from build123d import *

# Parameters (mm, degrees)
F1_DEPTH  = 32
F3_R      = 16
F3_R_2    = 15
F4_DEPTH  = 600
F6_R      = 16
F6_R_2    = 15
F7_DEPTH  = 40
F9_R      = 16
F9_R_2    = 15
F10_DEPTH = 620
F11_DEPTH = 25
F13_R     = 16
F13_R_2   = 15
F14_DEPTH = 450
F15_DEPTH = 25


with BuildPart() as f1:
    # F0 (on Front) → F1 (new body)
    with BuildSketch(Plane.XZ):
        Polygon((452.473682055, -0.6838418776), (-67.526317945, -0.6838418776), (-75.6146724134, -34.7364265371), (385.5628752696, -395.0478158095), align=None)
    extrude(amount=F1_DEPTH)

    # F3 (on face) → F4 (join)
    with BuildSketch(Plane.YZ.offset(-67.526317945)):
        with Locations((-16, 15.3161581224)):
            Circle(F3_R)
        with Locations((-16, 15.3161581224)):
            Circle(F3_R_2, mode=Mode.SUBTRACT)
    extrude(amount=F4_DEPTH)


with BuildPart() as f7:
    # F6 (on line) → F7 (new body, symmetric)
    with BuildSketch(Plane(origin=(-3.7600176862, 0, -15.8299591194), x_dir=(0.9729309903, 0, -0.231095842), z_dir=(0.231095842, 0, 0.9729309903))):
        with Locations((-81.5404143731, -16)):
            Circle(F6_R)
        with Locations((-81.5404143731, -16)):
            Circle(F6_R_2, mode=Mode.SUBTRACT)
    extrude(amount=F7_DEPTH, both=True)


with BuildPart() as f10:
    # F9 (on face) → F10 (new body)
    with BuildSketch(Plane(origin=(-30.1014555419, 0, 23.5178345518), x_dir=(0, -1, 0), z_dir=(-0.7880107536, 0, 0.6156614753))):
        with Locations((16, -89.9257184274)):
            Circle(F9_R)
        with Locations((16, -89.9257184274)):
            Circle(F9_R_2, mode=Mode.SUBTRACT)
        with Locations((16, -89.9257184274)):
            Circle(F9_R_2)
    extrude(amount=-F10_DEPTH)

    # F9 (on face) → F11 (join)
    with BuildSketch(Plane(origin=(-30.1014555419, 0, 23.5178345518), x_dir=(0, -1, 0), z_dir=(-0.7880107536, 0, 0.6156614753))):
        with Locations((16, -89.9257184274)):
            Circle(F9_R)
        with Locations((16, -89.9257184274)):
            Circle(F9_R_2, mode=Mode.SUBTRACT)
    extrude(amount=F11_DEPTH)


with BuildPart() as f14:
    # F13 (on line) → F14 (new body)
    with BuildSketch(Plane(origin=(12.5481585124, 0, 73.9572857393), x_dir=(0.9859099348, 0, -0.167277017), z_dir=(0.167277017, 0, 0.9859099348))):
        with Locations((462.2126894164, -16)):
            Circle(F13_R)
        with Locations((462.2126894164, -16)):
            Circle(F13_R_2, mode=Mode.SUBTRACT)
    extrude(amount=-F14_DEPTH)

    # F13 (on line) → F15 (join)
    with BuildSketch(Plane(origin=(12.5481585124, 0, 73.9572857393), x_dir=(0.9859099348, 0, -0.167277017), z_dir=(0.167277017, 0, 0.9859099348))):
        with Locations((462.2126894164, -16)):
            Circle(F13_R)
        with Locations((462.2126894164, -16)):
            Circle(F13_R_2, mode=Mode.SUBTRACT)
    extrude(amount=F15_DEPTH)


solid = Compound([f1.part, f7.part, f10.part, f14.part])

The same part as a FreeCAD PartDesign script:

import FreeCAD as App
import Part
import Sketcher
Q = App.Units.Quantity


def add_polygon(sketch, points):
    """Adds a closed chain of lines whose ends are joined by coincident constraints."""
    first, n = sketch.GeometryCount, len(points)
    for a, b in zip(points, points[1:] + points[:1]):
        sketch.addGeometry(Part.LineSegment(App.Vector(*a, 0), App.Vector(*b, 0)), False)
    for i in range(n):
        sketch.addConstraint(Sketcher.Constraint("Coincident", first + i, 2, first + (i + 1) % n, 1))

doc = App.newDocument("Part")
body = doc.addObject("PartDesign::Body", "Body")
body.AllowCompound = True

sketch1 = doc.addObject("Sketcher::SketchObject", "Sketch")
body.addObject(sketch1)
sketch1.AttachmentSupport = (doc.XZ_Plane, [""])
sketch1.MapMode = "FlatFace"
add_polygon(sketch1, [(452, -1), (-68, -1), (-76, -35), (386, -395)])
sketch1.addConstraint(Sketcher.Constraint("Horizontal", 0))
sketch1.addConstraint(Sketcher.Constraint("DistanceX", 0, 2, 0, 1, 520.0))
sketch1.addConstraint(Sketcher.Constraint("Angle", 2, Q("-38 deg")))
sketch1.addConstraint(Sketcher.Constraint("Distance", 1, 35.0))
sketch1.addConstraint(Sketcher.Constraint("Distance", 3, 400.0))
sketch1.addConstraint(Sketcher.Constraint("Distance", 2, 585.242708))
sketch1.addConstraint(Sketcher.Constraint("DistanceY", 0, 2, -1, 1, 0.683842))
sketch1.addConstraint(Sketcher.Constraint("DistanceX", 0, 2, -1, 1, 67.526318))
pad1 = doc.addObject("PartDesign::Pad", "Pad")
body.addObject(pad1)
pad1.Profile = sketch1
pad1.Length = 32

sketch2 = doc.addObject("Sketcher::SketchObject", "Sketch001")
body.addObject(sketch2)
sketch2.AttachmentSupport = (doc.YZ_Plane, [""])
sketch2.MapMode = "FlatFace"
sketch2.AttachmentOffset = App.Placement(App.Vector(0, 0, -67.526318), App.Rotation())
sketch2.addGeometry(Part.Circle(App.Vector(-16, 15, 0), App.Vector(0, 0, 1), 16), False)
sketch2.addGeometry(Part.Circle(App.Vector(-16, 15, 0), App.Vector(0, 0, 1), 15), False)
sketch2.addConstraint(Sketcher.Constraint("Coincident", 1, 3, 0, 3))
sketch2.addConstraint(Sketcher.Constraint("Diameter", 0, 32.0))
sketch2.addConstraint(Sketcher.Constraint("Diameter", 1, 30.0))
sketch2.addConstraint(Sketcher.Constraint("DistanceX", 0, 3, -1, 1, 16.0))
sketch2.addConstraint(Sketcher.Constraint("DistanceY", -1, 1, 0, 3, 15.316158))
pad2 = doc.addObject("PartDesign::Pad", "Pad001")
body.addObject(pad2)
pad2.Profile = sketch2
pad2.Length = 600
body2 = doc.addObject("PartDesign::Body", "Body001")

sketch3 = doc.addObject("Sketcher::SketchObject", "Sketch002")
body2.addObject(sketch3)
sketch3.Placement = App.Placement(App.Vector(-3.760018, 0, -15.829959), App.Rotation(App.Vector(0.97293099, 0, -0.231095842), App.Vector(0, 0.999999999, 0), App.Vector(0.231095842, 0, 0.97293099), "ZXY"))
sketch3.addGeometry(Part.Circle(App.Vector(-82, -16, 0), App.Vector(0, 0, 1), 16), False)
sketch3.addGeometry(Part.Circle(App.Vector(-82, -16, 0), App.Vector(0, 0, 1), 15), False)
sketch3.addConstraint(Sketcher.Constraint("Coincident", 1, 3, 0, 3))
sketch3.addConstraint(Sketcher.Constraint("Diameter", 0, 32.0))
sketch3.addConstraint(Sketcher.Constraint("Diameter", 1, 30.0))
sketch3.addConstraint(Sketcher.Constraint("DistanceY", 0, 3, -1, 1, 16.0))
sketch3.addConstraint(Sketcher.Constraint("DistanceX", 0, 3, -1, 1, 81.540414))
pad3 = doc.addObject("PartDesign::Pad", "Pad002")
body2.addObject(pad3)
pad3.Profile = sketch3
pad3.Length = 80
pad3.Midplane = True
body3 = doc.addObject("PartDesign::Body", "Body002")

sketch4 = doc.addObject("Sketcher::SketchObject", "Sketch003")
body3.addObject(sketch4)
sketch4.Placement = App.Placement(App.Vector(-30.101456, 0, 23.517835), App.Rotation(App.Vector(0, -1, 0), App.Vector(0.615661475, 0, 0.788010754), App.Vector(-0.788010754, 0, 0.615661475), "ZXY"))
sketch4.addGeometry(Part.Circle(App.Vector(16, -90, 0), App.Vector(0, 0, 1), 16), False)
sketch4.addConstraint(Sketcher.Constraint("Diameter", 0, 32.0))
sketch4.addConstraint(Sketcher.Constraint("DistanceX", -1, 1, 0, 3, 16.0))
sketch4.addConstraint(Sketcher.Constraint("DistanceY", 0, 3, -1, 1, 89.925718))
pad4 = doc.addObject("PartDesign::Pad", "Pad003")
body3.addObject(pad4)
pad4.Profile = sketch4
pad4.Length = 620
pad4.Reversed = True

sketch5 = doc.addObject("Sketcher::SketchObject", "Sketch004")
body3.addObject(sketch5)
sketch5.Placement = App.Placement(App.Vector(-30.101456, 0, 23.517835), App.Rotation(App.Vector(0, -1, 0), App.Vector(0.615661475, 0, 0.788010754), App.Vector(-0.788010754, 0, 0.615661475), "ZXY"))
sketch5.addGeometry(Part.Circle(App.Vector(16, -90, 0), App.Vector(0, 0, 1), 16), False)
sketch5.addGeometry(Part.Circle(App.Vector(16, -90, 0), App.Vector(0, 0, 1), 15), False)
sketch5.addConstraint(Sketcher.Constraint("Coincident", 1, 3, 0, 3))
sketch5.addConstraint(Sketcher.Constraint("Diameter", 0, 32.0))
sketch5.addConstraint(Sketcher.Constraint("Diameter", 1, 30.0))
sketch5.addConstraint(Sketcher.Constraint("DistanceX", -1, 1, 0, 3, 16.0))
sketch5.addConstraint(Sketcher.Constraint("DistanceY", 0, 3, -1, 1, 89.925718))
pad5 = doc.addObject("PartDesign::Pad", "Pad004")
body3.addObject(pad5)
pad5.Profile = sketch5
pad5.Length = 25
body4 = doc.addObject("PartDesign::Body", "Body003")

sketch6 = doc.addObject("Sketcher::SketchObject", "Sketch005")
body4.addObject(sketch6)
sketch6.Placement = App.Placement(App.Vector(12.548159, 0, 73.957286), App.Rotation(App.Vector(0.985909935, 0, -0.167277017), App.Vector(0, 1, 0), App.Vector(0.167277017, 0, 0.985909935), "ZXY"))
sketch6.addGeometry(Part.Circle(App.Vector(462, -16, 0), App.Vector(0, 0, 1), 16), False)
sketch6.addGeometry(Part.Circle(App.Vector(462, -16, 0), App.Vector(0, 0, 1), 15), False)
sketch6.addConstraint(Sketcher.Constraint("Coincident", 1, 3, 0, 3))
sketch6.addConstraint(Sketcher.Constraint("Diameter", 0, 32.0))
sketch6.addConstraint(Sketcher.Constraint("Diameter", 1, 30.0))
sketch6.addConstraint(Sketcher.Constraint("DistanceY", 0, 3, -1, 1, 16.0))
sketch6.addConstraint(Sketcher.Constraint("DistanceX", -1, 1, 0, 3, 462.21269))
pad6 = doc.addObject("PartDesign::Pad", "Pad005")
body4.addObject(pad6)
pad6.Profile = sketch6
pad6.Length = 450
pad6.Reversed = True

sketch7 = doc.addObject("Sketcher::SketchObject", "Sketch006")
body4.addObject(sketch7)
sketch7.Placement = App.Placement(App.Vector(12.548159, 0, 73.957286), App.Rotation(App.Vector(0.985909935, 0, -0.167277017), App.Vector(0, 1, 0), App.Vector(0.167277017, 0, 0.985909935), "ZXY"))
sketch7.addGeometry(Part.Circle(App.Vector(462, -16, 0), App.Vector(0, 0, 1), 16), False)
sketch7.addGeometry(Part.Circle(App.Vector(462, -16, 0), App.Vector(0, 0, 1), 15), False)
sketch7.addConstraint(Sketcher.Constraint("Coincident", 1, 3, 0, 3))
sketch7.addConstraint(Sketcher.Constraint("Diameter", 0, 32.0))
sketch7.addConstraint(Sketcher.Constraint("Diameter", 1, 30.0))
sketch7.addConstraint(Sketcher.Constraint("DistanceY", 0, 3, -1, 1, 16.0))
sketch7.addConstraint(Sketcher.Constraint("DistanceX", -1, 1, 0, 3, 462.21269))
pad7 = doc.addObject("PartDesign::Pad", "Pad006")
body4.addObject(pad7)
pad7.Profile = sketch7
pad7.Length = 25

doc.recompute()
